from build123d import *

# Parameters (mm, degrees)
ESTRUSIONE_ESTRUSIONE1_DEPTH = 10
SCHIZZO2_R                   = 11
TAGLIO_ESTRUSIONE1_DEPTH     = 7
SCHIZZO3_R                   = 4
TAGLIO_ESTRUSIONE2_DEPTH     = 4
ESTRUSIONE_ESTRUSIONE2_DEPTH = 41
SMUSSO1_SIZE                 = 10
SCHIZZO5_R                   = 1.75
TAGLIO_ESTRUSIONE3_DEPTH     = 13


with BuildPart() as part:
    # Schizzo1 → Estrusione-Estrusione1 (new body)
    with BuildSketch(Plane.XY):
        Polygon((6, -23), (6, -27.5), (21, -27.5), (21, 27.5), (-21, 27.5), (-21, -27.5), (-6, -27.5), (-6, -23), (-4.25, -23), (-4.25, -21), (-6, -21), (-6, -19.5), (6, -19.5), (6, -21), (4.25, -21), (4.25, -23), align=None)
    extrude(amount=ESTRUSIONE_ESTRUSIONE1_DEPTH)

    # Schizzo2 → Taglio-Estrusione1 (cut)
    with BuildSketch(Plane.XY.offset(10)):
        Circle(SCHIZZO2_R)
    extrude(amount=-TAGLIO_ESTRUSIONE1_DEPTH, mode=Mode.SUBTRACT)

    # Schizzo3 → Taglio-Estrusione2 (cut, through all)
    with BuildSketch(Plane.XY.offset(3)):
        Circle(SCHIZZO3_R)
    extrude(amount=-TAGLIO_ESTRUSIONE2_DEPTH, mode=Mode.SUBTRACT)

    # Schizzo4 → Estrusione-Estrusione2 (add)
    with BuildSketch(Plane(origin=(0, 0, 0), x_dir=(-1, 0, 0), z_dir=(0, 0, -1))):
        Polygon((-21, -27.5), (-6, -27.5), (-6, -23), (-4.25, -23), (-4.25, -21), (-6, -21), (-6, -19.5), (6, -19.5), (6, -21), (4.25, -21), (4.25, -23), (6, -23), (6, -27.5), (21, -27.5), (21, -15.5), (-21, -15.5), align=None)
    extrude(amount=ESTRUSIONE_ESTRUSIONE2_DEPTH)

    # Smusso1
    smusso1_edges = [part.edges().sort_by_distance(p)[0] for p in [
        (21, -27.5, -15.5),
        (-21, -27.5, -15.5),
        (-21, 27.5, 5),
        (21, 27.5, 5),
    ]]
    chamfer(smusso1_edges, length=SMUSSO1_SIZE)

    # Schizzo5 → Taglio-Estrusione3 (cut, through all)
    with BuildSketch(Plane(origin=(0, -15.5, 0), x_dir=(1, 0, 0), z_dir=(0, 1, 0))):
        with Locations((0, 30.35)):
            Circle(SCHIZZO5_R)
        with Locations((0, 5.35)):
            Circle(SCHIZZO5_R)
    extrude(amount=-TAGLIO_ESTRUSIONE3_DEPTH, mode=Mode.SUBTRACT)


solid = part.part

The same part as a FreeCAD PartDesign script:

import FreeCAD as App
import Part
import Sketcher
Q = App.Units.Quantity


def edges_at(feature, points):
    """Names of the edges that pass closest to the given points."""
    edges = feature.Shape.Edges
    near = lambda p: min(range(len(edges)), key=lambda i: edges[i].distToShape(Part.Vertex(*p))[0])
    return sorted({f"Edge{near(p) + 1}" for p in points})

doc = App.newDocument("Part")
body = doc.addObject("PartDesign::Body", "Body")

sketch1 = doc.addObject("Sketcher::SketchObject", "Sketch")
body.addObject(sketch1)
sketch1.AttachmentSupport = (doc.XY_Plane, [""])
sketch1.MapMode = "FlatFace"
sketch1.addGeometry([
    Part.LineSegment(App.Vector(6, -23, 0), App.Vector(6, -27.5, 0)),
    Part.LineSegment(App.Vector(6, -27.5, 0), App.Vector(21, -27.5, 0)),
    Part.LineSegment(App.Vector(21, -27.5, 0), App.Vector(21, 27.5, 0)),
    Part.LineSegment(App.Vector(21, 27.5, 0), App.Vector(-21, 27.5, 0)),
    Part.LineSegment(App.Vector(-21, 27.5, 0), App.Vector(-21, -27.5, 0)),
    Part.LineSegment(App.Vector(-21, -27.5, 0), App.Vector(-6, -27.5, 0)),
    Part.LineSegment(App.Vector(-6, -27.5, 0), App.Vector(-6, -23, 0)),
    Part.LineSegment(App.Vector(-6, -23, 0), App.Vector(-4.2, -23, 0)),
    Part.LineSegment(App.Vector(-4.2, -23, 0), App.Vector(-4.2, -21, 0)),
    Part.LineSegment(App.Vector(-4.2, -21, 0), App.Vector(-6, -21, 0)),
    Part.LineSegment(App.Vector(-6, -21, 0), App.Vector(-6, -19.5, 0)),
    Part.LineSegment(App.Vector(-6, -19.5, 0), App.Vector(6, -19.5, 0)),
    Part.LineSegment(App.Vector(6, -19.5, 0), App.Vector(6, -21, 0)),
    Part.LineSegment(App.Vector(6, -21, 0), App.Vector(4.2, -21, 0)),
    Part.LineSegment(App.Vector(4.2, -21, 0), App.Vector(4.2, -23, 0)),
    Part.LineSegment(App.Vector(4.2, -23, 0), App.Vector(6, -23, 0)),
], False)
sketch1.addConstraint([
    Sketcher.Constraint("Coincident", 0, 2, 1, 1),
    Sketcher.Constraint("Coincident", 1, 2, 2, 1),
    Sketcher.Constraint("Coincident", 2, 2, 3, 1),
    Sketcher.Constraint("Coincident", 3, 2, 4, 1),
    Sketcher.Constraint("Coincident", 4, 2, 5, 1),
    Sketcher.Constraint("Coincident", 5, 2, 6, 1),
    Sketcher.Constraint("Coincident", 6, 2, 7, 1),
    Sketcher.Constraint("Coincident", 7, 2, 8, 1),
    Sketcher.Constraint("Coincident", 8, 2, 9, 1),
    Sketcher.Constraint("Coincident", 9, 2, 10, 1),
    Sketcher.Constraint("Coincident", 10, 2, 11, 1),
    Sketcher.Constraint("Coincident", 11, 2, 12, 1),
    Sketcher.Constraint("Coincident", 12, 2, 13, 1),
    Sketcher.Constraint("Coincident", 13, 2, 14, 1),
    Sketcher.Constraint("Coincident", 14, 2, 15, 1),
    Sketcher.Constraint("Coincident", 15, 2, 0, 1),
    Sketcher.Constraint("Vertical", 0),
    Sketcher.Constraint("Horizontal", 1),
    Sketcher.Constraint("Vertical", 2),
    Sketcher.Constraint("Horizontal", 3),
    Sketcher.Constraint("Vertical", 4),
    Sketcher.Constraint("Horizontal", 5),
    Sketcher.Constraint("Vertical", 6),
    Sketcher.Constraint("Horizontal", 7),
    Sketcher.Constraint("Vertical", 8),
    Sketcher.Constraint("Horizontal", 9),
    Sketcher.Constraint("Vertical", 10),
    Sketcher.Constraint("Horizontal", 11),
    Sketcher.Constraint("Vertical", 12),
    Sketcher.Constraint("Horizontal", 13),
    Sketcher.Constraint("Vertical", 14),
    Sketcher.Constraint("Horizontal", 15),
    Sketcher.Constraint("Symmetric", 1, 2, 3, 2, -1, 1),
    Sketcher.Constraint("Symmetric", 0, 2, 5, 2, -2),
    Sketcher.Constraint("Symmetric", 9, 2, 12, 2, -2),
    Sketcher.Constraint("Symmetric", 7, 2, 14, 2, -2),
    Sketcher.Constraint("Vertical", 6, 2, 9, 2),
    Sketcher.Constraint("DistanceX", 1, 1, 1, 2, Q("15 mm")),
    Sketcher.Constraint("DistanceX", 3, 2, 3, 1, Q("42 mm")),
    Sketcher.Constraint("DistanceY", 2, 1, 2, 2, Q("55 mm")),
    Sketcher.Constraint("DistanceY", 8, 1, 8, 2, Q("2 mm")),
    Sketcher.Constraint("DistanceY", 0, 2, 0, 1, Q("4.5 mm")),
    Sketcher.Constraint("DistanceY", 10, 1, 10, 2, Q("1.5 mm")),
    Sketcher.Constraint("DistanceX", 7, 1, 7, 2, Q("1.75 mm")),
])
pad1 = doc.addObject("PartDesign::Pad", "Pad")
body.addObject(pad1)
pad1.Profile = sketch1
pad1.Length = 10

sketch2 = doc.addObject("Sketcher::SketchObject", "Sketch001")
body.addObject(sketch2)
sketch2.AttachmentSupport = (doc.XY_Plane, [""])
sketch2.MapMode = "FlatFace"
sketch2.AttachmentOffset = App.Placement(App.Vector(0, 0, 10), App.Rotation())
sketch2.addGeometry(Part.Circle(App.Vector(0, 0, 0), App.Vector(0, 0, 1), 11), False)
sketch2.addConstraint([
    Sketcher.Constraint("Coincident", 0, 3, -1, 1),
    Sketcher.Constraint("Diameter", 0, Q("22 mm")),
])
pocket1 = doc.addObject("PartDesign::Pocket", "Pocket")
body.addObject(pocket1)
pocket1.Profile = sketch2
pocket1.Length = 7

sketch3 = doc.addObject("Sketcher::SketchObject", "Sketch002")
body.addObject(sketch3)
sketch3.AttachmentSupport = (doc.XY_Plane, [""])
sketch3.MapMode = "FlatFace"
sketch3.AttachmentOffset = App.Placement(App.Vector(0, 0, 3), App.Rotation())
sketch3.addGeometry(Part.Circle(App.Vector(0, 0, 0), App.Vector(0, 0, 1), 4), False)
sketch3.addConstraint([
    Sketcher.Constraint("Coincident", 0, 3, -1, 1),
    Sketcher.Constraint("Diameter", 0, Q("8 mm")),
])
pocket2 = doc.addObject("PartDesign::Pocket", "Pocket001")
body.addObject(pocket2)
pocket2.Profile = sketch3
pocket2.Type = "ThroughAll"

sketch4 = doc.addObject("Sketcher::SketchObject", "Sketch003")
body.addObject(sketch4)
sketch4.AttachmentSupport = (doc.XY_Plane, [""])
sketch4.MapMode = "FlatFace"
sketch4.addGeometry([
    Part.LineSegment(App.Vector(21, -27.5, 0), App.Vector(6, -27.5, 0)),
    Part.LineSegment(App.Vector(6, -27.5, 0), App.Vector(6, -23, 0)),
    Part.LineSegment(App.Vector(6, -23, 0), App.Vector(4.2, -23, 0)),
    Part.LineSegment(App.Vector(4.2, -23, 0), App.Vector(4.2, -21, 0)),
    Part.LineSegment(App.Vector(4.2, -21, 0), App.Vector(6, -21, 0)),
    Part.LineSegment(App.Vector(6, -21, 0), App.Vector(6, -19.5, 0)),
    Part.LineSegment(App.Vector(6, -19.5, 0), App.Vector(-6, -19.5, 0)),
    Part.LineSegment(App.Vector(-6, -19.5, 0), App.Vector(-6, -21, 0)),
    Part.LineSegment(App.Vector(-6, -21, 0), App.Vector(-4.2, -21, 0)),
    Part.LineSegment(App.Vector(-4.2, -21, 0), App.Vector(-4.2, -23, 0)),
    Part.LineSegment(App.Vector(-4.2, -23, 0), App.Vector(-6, -23, 0)),
    Part.LineSegment(App.Vector(-6, -23, 0), App.Vector(-6, -27.5, 0)),
    Part.LineSegment(App.Vector(-6, -27.5, 0), App.Vector(-21, -27.5, 0)),
    Part.LineSegment(App.Vector(-21, -27.5, 0), App.Vector(-21, -15.5, 0)),
    Part.LineSegment(App.Vector(-21, -15.5, 0), App.Vector(21, -15.5, 0)),
    Part.LineSegment(App.Vector(21, -15.5, 0), App.Vector(21, -27.5, 0)),
], False)
sketch4.addConstraint([
    Sketcher.Constraint("Coincident", 0, 2, 1, 1),
    Sketcher.Constraint("Coincident", 1, 2, 2, 1),
    Sketcher.Constraint("Coincident", 2, 2, 3, 1),
    Sketcher.Constraint("Coincident", 3, 2, 4, 1),
    Sketcher.Constraint("Coincident", 4, 2, 5, 1),
    Sketcher.Constraint("Coincident", 5, 2, 6, 1),
    Sketcher.Constraint("Coincident", 6, 2, 7, 1),
    Sketcher.Constraint("Coincident", 7, 2, 8, 1),
    Sketcher.Constraint("Coincident", 8, 2, 9, 1),
    Sketcher.Constraint("Coincident", 9, 2, 10, 1),
    Sketcher.Constraint("Coincident", 10, 2, 11, 1),
    Sketcher.Constraint("Coincident", 11, 2, 12, 1),
    Sketcher.Constraint("Coincident", 12, 2, 13, 1),
    Sketcher.Constraint("Coincident", 13, 2, 14, 1),
    Sketcher.Constraint("Coincident", 14, 2, 15, 1),
    Sketcher.Constraint("Coincident", 15, 2, 0, 1),
    Sketcher.Constraint("Horizontal", 0),
    Sketcher.Constraint("Vertical", 1),
    Sketcher.Constraint("Horizontal", 2),
    Sketcher.Constraint("Vertical", 3),
    Sketcher.Constraint("Horizontal", 4),
    Sketcher.Constraint("Vertical", 5),
    Sketcher.Constraint("Horizontal", 6),
    Sketcher.Constraint("Vertical", 7),
    Sketcher.Constraint("Horizontal", 8),
    Sketcher.Constraint("Vertical", 9),
    Sketcher.Constraint("Horizontal", 10),
    Sketcher.Constraint("Vertical", 11),
    Sketcher.Constraint("Horizontal", 12),
    Sketcher.Constraint("Vertical", 13),
    Sketcher.Constraint("Horizontal", 14),
    Sketcher.Constraint("Vertical", 15),
    Sketcher.Constraint("Symmetric", 4, 2, 7, 2, -2),
    Sketcher.Constraint("Symmetric", 2, 2, 9, 2, -2),
    Sketcher.Constraint("Symmetric", 0, 2, 11, 2, -2),
    Sketcher.Constraint("Vertical", 1, 2, 4, 2),
    Sketcher.Constraint("Equal", 0, 12),
    Sketcher.Constraint("Equal", 6, 13),
    Sketcher.Constraint("DistanceX", 0, 2, 0, 1, Q("15 mm")),
    Sketcher.Constraint("DistanceX", 6, 2, 6, 1, Q("12 mm")),
    Sketcher.Constraint("DistanceY", 3, 1, 3, 2, Q("2 mm")),
    Sketcher.Constraint("DistanceY", 1, 1, 1, 2, Q("4.5 mm")),
    Sketcher.Constraint("DistanceY", 5, 1, 5, 2, Q("1.5 mm")),
    Sketcher.Constraint("DistanceY", 1, 2, -1, 1, Q("23 mm")),
    Sketcher.Constraint("DistanceX", 2, 2, 2, 1, Q("1.75 mm")),
])
pad2 = doc.addObject("PartDesign::Pad", "Pad001")
body.addObject(pad2)
pad2.Profile = sketch4
pad2.Length = 41
pad2.Reversed = True
doc.recompute()

chamfer = doc.addObject("PartDesign::Chamfer", "Chamfer")
body.addObject(chamfer)
chamfer.Base = (pad2, edges_at(pad2, [
    (21, -27.5, -15.5),
    (-21, -27.5, -15.5),
    (-21, 27.5, 5),
    (21, 27.5, 5),
]))
chamfer.Size = 10

sketch5 = doc.addObject("Sketcher::SketchObject", "Sketch004")
body.addObject(sketch5)
sketch5.AttachmentSupport = (doc.XZ_Plane, [""])
sketch5.MapMode = "FlatFace"
sketch5.AttachmentOffset = App.Placement(App.Vector(0, 0, 15.5), App.Rotation())
sketch5.addGeometry([
    Part.Circle(App.Vector(0, -30.4, 0), App.Vector(0, 0, 1), 1.8),
    Part.Circle(App.Vector(0, -5.3, 0), App.Vector(0, 0, 1), 1.8),
], False)
sketch5.addConstraint([
    Sketcher.Constraint("Equal", 0, 1),
    Sketcher.Constraint("PointOnObject", 0, 3, -2),
    Sketcher.Constraint("PointOnObject", 1, 3, -2),
    Sketcher.Constraint("Diameter", 0, Q("3.5 mm")),
    Sketcher.Constraint("DistanceY", 0, 3, 1, 3, Q("25 mm")),
    Sketcher.Constraint("DistanceY", 0, 3, -1, 1, Q("30.35 mm")),
])
pocket3 = doc.addObject("PartDesign::Pocket", "Pocket002")
body.addObject(pocket3)
pocket3.Profile = sketch5
pocket3.Type = "ThroughAll"
pocket3.Reversed = True

doc.recompute()
